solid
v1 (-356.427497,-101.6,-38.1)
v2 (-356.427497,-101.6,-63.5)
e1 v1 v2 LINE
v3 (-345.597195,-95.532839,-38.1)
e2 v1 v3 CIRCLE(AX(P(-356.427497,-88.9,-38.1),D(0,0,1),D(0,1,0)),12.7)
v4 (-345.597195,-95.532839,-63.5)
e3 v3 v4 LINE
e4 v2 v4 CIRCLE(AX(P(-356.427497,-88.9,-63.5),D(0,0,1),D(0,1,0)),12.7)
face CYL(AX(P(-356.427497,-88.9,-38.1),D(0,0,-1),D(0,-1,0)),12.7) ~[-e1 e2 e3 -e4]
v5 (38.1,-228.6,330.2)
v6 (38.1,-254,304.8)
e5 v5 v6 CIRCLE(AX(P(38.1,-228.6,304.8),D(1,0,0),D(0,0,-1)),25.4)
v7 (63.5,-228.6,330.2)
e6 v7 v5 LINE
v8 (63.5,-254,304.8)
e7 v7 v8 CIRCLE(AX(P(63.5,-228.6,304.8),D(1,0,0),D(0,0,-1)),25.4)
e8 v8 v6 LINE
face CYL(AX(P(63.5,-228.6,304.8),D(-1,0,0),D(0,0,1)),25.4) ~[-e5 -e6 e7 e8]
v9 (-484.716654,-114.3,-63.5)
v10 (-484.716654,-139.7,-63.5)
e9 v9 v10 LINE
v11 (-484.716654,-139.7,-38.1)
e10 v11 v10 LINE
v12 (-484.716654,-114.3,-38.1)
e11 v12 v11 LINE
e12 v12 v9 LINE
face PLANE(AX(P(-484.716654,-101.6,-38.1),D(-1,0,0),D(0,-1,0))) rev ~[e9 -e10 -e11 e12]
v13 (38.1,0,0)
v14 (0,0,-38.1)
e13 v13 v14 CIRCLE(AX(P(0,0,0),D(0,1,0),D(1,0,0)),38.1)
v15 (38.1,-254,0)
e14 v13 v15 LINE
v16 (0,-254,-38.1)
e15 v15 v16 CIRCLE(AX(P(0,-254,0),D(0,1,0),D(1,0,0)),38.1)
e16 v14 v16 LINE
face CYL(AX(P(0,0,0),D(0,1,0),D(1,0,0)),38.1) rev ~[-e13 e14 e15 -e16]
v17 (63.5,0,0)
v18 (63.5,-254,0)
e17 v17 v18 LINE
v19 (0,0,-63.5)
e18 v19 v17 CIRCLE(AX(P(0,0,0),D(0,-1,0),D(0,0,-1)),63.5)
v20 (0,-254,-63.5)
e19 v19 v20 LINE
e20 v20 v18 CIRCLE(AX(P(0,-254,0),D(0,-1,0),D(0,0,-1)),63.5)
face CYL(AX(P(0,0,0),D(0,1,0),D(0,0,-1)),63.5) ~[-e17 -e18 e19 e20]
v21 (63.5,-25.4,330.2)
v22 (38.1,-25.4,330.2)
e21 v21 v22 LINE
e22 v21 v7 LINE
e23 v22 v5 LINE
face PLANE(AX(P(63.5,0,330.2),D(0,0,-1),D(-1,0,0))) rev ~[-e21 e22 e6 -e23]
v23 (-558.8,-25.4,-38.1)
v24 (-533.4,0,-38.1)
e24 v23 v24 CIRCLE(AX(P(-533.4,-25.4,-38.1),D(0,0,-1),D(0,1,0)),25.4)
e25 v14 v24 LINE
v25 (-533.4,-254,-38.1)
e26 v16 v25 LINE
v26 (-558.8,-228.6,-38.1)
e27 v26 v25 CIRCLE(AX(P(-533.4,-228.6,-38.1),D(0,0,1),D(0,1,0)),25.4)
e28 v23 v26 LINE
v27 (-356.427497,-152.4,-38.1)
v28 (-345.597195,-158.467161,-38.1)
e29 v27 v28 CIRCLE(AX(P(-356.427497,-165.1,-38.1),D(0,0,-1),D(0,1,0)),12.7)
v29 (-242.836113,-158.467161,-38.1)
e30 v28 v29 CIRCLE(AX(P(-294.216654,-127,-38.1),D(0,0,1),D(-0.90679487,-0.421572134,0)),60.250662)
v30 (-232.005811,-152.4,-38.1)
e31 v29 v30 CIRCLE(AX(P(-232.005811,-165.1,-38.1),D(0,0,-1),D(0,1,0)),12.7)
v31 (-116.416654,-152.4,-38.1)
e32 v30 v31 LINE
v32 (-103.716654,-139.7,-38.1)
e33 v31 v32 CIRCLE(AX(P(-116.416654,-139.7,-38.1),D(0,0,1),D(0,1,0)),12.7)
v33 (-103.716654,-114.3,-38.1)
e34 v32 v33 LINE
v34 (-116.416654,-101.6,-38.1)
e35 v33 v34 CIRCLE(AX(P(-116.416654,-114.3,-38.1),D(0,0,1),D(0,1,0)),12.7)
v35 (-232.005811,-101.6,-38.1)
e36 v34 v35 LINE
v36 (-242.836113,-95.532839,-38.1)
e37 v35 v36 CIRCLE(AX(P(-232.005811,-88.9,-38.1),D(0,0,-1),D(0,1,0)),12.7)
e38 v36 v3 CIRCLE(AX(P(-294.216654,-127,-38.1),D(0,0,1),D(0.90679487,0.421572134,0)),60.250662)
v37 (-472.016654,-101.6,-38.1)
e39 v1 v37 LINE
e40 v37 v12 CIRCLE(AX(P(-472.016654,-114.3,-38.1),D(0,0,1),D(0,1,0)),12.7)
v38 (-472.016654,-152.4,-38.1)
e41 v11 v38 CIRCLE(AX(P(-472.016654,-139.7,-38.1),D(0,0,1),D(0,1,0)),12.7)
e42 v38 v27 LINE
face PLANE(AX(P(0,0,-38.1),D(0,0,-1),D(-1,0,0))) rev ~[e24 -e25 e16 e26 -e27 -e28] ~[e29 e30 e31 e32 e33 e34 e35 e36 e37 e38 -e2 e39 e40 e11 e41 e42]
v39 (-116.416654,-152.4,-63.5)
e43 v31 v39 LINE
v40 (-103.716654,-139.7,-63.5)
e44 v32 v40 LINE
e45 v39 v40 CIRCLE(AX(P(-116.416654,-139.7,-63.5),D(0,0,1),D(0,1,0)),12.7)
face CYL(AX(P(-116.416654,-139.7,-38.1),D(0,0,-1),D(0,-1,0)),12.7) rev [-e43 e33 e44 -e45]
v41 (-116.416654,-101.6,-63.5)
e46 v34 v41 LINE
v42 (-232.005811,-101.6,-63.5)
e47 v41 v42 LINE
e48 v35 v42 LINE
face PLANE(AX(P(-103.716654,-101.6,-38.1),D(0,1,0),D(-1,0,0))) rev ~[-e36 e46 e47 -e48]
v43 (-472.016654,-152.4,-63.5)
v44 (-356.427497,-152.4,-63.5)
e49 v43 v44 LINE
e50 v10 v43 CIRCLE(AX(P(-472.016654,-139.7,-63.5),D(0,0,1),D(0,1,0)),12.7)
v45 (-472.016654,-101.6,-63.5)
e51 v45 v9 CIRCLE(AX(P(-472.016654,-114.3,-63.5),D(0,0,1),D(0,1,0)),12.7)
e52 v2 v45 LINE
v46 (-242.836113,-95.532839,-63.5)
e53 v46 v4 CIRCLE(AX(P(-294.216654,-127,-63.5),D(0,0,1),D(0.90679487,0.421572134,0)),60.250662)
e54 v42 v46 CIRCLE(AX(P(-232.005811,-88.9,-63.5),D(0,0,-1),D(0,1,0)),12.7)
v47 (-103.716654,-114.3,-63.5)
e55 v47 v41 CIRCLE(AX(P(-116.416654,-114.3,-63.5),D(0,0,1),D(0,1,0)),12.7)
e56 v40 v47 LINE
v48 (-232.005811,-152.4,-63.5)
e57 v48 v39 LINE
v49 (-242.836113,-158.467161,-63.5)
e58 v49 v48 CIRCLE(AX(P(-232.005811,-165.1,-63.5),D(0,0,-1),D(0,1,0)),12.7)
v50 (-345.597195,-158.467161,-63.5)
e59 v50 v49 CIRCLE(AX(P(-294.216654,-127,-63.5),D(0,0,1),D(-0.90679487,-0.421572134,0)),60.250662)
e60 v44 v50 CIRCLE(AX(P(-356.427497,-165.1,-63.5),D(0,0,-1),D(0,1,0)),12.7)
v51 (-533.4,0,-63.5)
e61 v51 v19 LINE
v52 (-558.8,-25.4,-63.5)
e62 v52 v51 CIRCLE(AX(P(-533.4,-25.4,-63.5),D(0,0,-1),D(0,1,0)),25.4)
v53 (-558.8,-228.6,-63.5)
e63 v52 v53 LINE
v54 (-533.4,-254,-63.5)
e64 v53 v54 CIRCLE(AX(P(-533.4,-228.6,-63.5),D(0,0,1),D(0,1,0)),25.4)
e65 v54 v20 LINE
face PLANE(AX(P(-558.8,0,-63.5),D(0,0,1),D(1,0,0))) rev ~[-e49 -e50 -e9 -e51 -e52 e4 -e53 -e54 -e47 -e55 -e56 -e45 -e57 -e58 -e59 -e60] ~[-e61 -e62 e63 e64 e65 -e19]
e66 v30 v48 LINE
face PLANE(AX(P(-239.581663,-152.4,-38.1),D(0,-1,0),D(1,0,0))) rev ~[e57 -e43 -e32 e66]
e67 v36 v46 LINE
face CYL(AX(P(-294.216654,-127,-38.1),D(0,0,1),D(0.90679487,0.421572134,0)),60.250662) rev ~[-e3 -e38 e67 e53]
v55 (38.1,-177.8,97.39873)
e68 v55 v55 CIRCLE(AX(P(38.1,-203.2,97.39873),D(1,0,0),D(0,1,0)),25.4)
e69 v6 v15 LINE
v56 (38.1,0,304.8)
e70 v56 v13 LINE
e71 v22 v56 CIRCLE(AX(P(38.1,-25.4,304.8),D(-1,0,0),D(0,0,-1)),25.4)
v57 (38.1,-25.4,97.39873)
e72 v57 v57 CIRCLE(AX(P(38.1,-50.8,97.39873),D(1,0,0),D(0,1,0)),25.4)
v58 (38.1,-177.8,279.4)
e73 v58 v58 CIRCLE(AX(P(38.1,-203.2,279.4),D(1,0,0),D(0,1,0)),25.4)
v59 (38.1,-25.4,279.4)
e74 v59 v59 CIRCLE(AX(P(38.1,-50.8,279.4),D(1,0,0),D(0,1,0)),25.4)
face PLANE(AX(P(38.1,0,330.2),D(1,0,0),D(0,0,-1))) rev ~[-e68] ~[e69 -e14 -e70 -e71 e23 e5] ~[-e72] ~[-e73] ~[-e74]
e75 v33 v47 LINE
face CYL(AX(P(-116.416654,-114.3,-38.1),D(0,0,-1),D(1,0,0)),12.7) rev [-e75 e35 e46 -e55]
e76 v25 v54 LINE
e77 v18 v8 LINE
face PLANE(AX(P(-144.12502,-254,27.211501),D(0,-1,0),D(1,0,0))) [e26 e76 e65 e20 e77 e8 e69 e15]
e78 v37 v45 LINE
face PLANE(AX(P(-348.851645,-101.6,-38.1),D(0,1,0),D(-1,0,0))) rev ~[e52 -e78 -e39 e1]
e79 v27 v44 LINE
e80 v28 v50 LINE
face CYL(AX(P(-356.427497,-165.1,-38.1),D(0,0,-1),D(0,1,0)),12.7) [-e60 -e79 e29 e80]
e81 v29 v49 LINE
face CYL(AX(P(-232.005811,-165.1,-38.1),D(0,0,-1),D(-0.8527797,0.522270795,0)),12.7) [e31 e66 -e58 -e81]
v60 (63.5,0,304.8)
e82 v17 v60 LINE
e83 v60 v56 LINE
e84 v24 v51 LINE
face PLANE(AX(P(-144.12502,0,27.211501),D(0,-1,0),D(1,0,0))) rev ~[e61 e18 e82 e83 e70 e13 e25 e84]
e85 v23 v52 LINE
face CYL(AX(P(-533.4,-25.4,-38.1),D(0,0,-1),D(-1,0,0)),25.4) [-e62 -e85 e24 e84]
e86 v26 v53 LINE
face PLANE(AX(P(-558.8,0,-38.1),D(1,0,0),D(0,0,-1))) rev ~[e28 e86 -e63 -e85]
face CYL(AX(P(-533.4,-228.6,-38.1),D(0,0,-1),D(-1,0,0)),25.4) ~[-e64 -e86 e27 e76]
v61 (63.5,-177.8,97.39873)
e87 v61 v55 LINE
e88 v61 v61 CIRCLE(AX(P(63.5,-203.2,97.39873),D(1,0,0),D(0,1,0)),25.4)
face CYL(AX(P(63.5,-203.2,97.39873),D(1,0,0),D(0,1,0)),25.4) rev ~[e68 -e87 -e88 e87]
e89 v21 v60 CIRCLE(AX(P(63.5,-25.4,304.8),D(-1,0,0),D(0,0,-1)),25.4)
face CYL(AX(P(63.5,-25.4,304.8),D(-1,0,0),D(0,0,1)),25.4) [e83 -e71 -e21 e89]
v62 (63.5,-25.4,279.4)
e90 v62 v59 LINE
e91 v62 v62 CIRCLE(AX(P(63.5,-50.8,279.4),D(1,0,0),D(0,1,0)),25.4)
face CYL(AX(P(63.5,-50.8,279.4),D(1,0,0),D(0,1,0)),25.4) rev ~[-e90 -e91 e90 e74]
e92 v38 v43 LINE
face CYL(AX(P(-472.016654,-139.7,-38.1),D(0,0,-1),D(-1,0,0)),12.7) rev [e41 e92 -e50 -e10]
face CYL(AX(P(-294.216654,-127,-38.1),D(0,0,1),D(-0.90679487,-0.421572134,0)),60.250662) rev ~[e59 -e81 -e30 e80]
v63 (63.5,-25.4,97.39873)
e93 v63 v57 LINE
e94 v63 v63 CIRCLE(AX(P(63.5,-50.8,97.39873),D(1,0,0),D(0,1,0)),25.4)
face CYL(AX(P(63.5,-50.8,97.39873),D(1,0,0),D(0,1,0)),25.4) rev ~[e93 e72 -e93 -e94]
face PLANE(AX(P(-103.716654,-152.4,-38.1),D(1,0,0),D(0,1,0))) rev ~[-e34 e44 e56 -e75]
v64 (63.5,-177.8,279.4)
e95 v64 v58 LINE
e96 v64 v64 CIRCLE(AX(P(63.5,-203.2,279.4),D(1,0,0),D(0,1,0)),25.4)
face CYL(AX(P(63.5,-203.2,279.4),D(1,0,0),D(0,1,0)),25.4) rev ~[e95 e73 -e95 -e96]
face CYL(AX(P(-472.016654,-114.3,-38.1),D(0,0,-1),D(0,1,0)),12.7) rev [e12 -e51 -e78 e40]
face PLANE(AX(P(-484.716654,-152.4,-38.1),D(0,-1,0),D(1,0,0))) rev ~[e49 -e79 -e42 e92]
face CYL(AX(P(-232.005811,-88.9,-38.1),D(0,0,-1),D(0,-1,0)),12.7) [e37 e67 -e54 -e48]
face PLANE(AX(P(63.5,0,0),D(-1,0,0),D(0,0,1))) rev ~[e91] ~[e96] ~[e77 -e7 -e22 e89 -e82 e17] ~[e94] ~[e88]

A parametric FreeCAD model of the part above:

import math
import FreeCAD as App
import Part
import Sketcher
from FreeCAD import Vector
Q = App.Units.Quantity


def edges_at(feature, points):
    """Names of the edges that pass closest to the given points."""
    edges = feature.Shape.Edges
    near = lambda p: min(range(len(edges)), key=lambda i: edges[i].distToShape(Part.Vertex(*p))[0])
    return sorted({f"Edge{near(p) + 1}" for p in points})

doc = App.newDocument("Part")
params = doc.addObject("Spreadsheet::Sheet", "Params")
for row, (alias, value) in enumerate([
    ("sketch1_radius", "2.5 in"),
    ("sketch1_radius2", "1.5 in"),
    ("sketch1_width", "22 in"),
    ("sketch1_height", "13 in"),
    ("pad1_length", "10 in"),
    ("fillet_radius", "1 in"),
    ("sketch2_height", "2 in"),
    ("pocket1_length", "1 in"),
    ("fillet2_radius", "0.5 in"),
    ("sketch3_diameter", "2 in"),
    ("pocket2_length", "1 in"),
], start=1):
    params.set(f"A{row}", alias)
    params.set(f"B{row}", "=" + value)
    params.setAlias(f"B{row}", alias)

body = doc.addObject("PartDesign::Body", "Body")

sketch1 = body.newObject("Sketcher::SketchObject", "Sketch")
sketch1.AttachmentSupport = (doc.getObject("XZ_Plane"), [""])
sketch1.MapMode = "FlatFace"
sketch1.addGeometry(Part.LineSegment(Vector(-559, -64, 0), Vector(0, -64, 0)), False)
sketch1.addGeometry(Part.ArcOfCircle(Part.Circle(Vector(0, 0, 0), Vector(0, 0, 1), 64), math.radians(-90), math.radians(0)), False)
sketch1.addGeometry(Part.LineSegment(Vector(64, 0, 0), Vector(64, 330, 0)), False)
sketch1.addGeometry(Part.LineSegment(Vector(64, 330, 0), Vector(38, 330, 0)), False)
sketch1.addGeometry(Part.LineSegment(Vector(38, 330, 0), Vector(38, 0, 0)), False)
sketch1.addGeometry(Part.ArcOfCircle(Part.Circle(Vector(0, 0, 0), Vector(0, 0, 1), 38), math.radians(-90), math.radians(0)), False)
sketch1.addGeometry(Part.LineSegment(Vector(0, -38, 0), Vector(-559, -38, 0)), False)
sketch1.addGeometry(Part.LineSegment(Vector(-559, -38, 0), Vector(-559, -64, 0)), False)
sketch1.addConstraint(Sketcher.Constraint("Tangent", 0, 2, 1, 1))
sketch1.addConstraint(Sketcher.Constraint("Tangent", 1, 2, 2, 1))
sketch1.addConstraint(Sketcher.Constraint("Coincident", 2, 2, 3, 1))
sketch1.addConstraint(Sketcher.Constraint("Coincident", 3, 2, 4, 1))
sketch1.addConstraint(Sketcher.Constraint("Tangent", 4, 2, 5, 2))
sketch1.addConstraint(Sketcher.Constraint("Tangent", 5, 1, 6, 1))
sketch1.addConstraint(Sketcher.Constraint("Coincident", 6, 2, 7, 1))
sketch1.addConstraint(Sketcher.Constraint("Coincident", 7, 2, 0, 1))
sketch1.addConstraint(Sketcher.Constraint("Horizontal", 0))
sketch1.addConstraint(Sketcher.Constraint("Vertical", 2))
sketch1.addConstraint(Sketcher.Constraint("Horizontal", 3))
sketch1.addConstraint(Sketcher.Constraint("Vertical", 4))
sketch1.addConstraint(Sketcher.Constraint("Horizontal", 6))
sketch1.addConstraint(Sketcher.Constraint("Vertical", 7))
sketch1.addConstraint(Sketcher.Constraint("Coincident", 1, 3, -1, 1))
sketch1.addConstraint(Sketcher.Constraint("Coincident", 5, 3, -1, 1))
sketch1.addConstraint(Sketcher.Constraint("Radius", 1, Q("2.5 in")))
sketch1.addConstraint(Sketcher.Constraint("Radius", 5, Q("1.5 in")))
sketch1.addConstraint(Sketcher.Constraint("DistanceX", 0, 1, 0, 2, Q("22 in")))
sketch1.addConstraint(Sketcher.Constraint("DistanceY", 2, 1, 2, 2, Q("13 in")))
sketch1.setExpression("Constraints[16]", "Params.sketch1_radius")
sketch1.setExpression("Constraints[17]", "Params.sketch1_radius2")
sketch1.setExpression("Constraints[18]", "Params.sketch1_width")
sketch1.setExpression("Constraints[19]", "Params.sketch1_height")
pad1 = body.newObject("PartDesign::Pad", "Pad")
pad1.Profile = sketch1
pad1.setExpression("Length", "Params.pad1_length")
doc.recompute()

fillet = body.newObject("PartDesign::Fillet", "Fillet")
fillet.Base = (pad1, edges_at(pad1, [
    (50.8, 0, 330.2),
    (50.8, -254, 330.2),
    (-558.8, 0, -50.8),
    (-558.8, -254, -50.8),
]))
fillet.setExpression("Radius", "Params.fillet_radius")

sketch2 = body.newObject("Sketcher::SketchObject", "Sketch001")
sketch2.AttachmentSupport = (doc.getObject("XY_Plane"), [""])
sketch2.MapMode = "FlatFace"
sketch2.AttachmentOffset = App.Placement(Vector(0, 0, -1.5 * 25.4), App.Rotation())
sketch2.addGeometry(Part.LineSegment(Vector(-349, -102, 0), Vector(-485, -102, 0)), False)
sketch2.addGeometry(Part.LineSegment(Vector(-485, -102, 0), Vector(-485, -152, 0)), False)
sketch2.addGeometry(Part.LineSegment(Vector(-485, -152, 0), Vector(-349, -152, 0)), False)
sketch2.addGeometry(Part.ArcOfCircle(Part.Circle(Vector(-294, -127, 0), Vector(0, 0, 1), 60), math.radians(-155), math.radians(-25)), False)
sketch2.addGeometry(Part.LineSegment(Vector(-240, -152, 0), Vector(-104, -152, 0)), False)
sketch2.addGeometry(Part.LineSegment(Vector(-104, -152, 0), Vector(-104, -102, 0)), False)
sketch2.addGeometry(Part.LineSegment(Vector(-104, -102, 0), Vector(-240, -102, 0)), False)
sketch2.addGeometry(Part.ArcOfCircle(Part.Circle(Vector(-294, -127, 0), Vector(0, 0, 1), 60), math.radians(25), math.radians(155)), False)
sketch2.addConstraint(Sketcher.Constraint("Coincident", 0, 2, 1, 1))
sketch2.addConstraint(Sketcher.Constraint("Coincident", 1, 2, 2, 1))
sketch2.addConstraint(Sketcher.Constraint("Coincident", 2, 2, 3, 1))
sketch2.addConstraint(Sketcher.Constraint("Coincident", 3, 2, 4, 1))
sketch2.addConstraint(Sketcher.Constraint("Coincident", 4, 2, 5, 1))
sketch2.addConstraint(Sketcher.Constraint("Coincident", 5, 2, 6, 1))
sketch2.addConstraint(Sketcher.Constraint("Coincident", 6, 2, 7, 1))
sketch2.addConstraint(Sketcher.Constraint("Coincident", 7, 2, 0, 1))
sketch2.addConstraint(Sketcher.Constraint("Horizontal", 0))
sketch2.addConstraint(Sketcher.Constraint("Vertical", 1))
sketch2.addConstraint(Sketcher.Constraint("Horizontal", 2))
sketch2.addConstraint(Sketcher.Constraint("Horizontal", 4))
sketch2.addConstraint(Sketcher.Constraint("Vertical", 5))
sketch2.addConstraint(Sketcher.Constraint("Horizontal", 6))
sketch2.addConstraint(Sketcher.Constraint("Coincident", 7, 3, 3, 3))
sketch2.addConstraint(Sketcher.Constraint("Equal", 3, 7))
sketch2.addConstraint(Sketcher.Constraint("Horizontal", 2, 2, 3, 2))
sketch2.addConstraint(Sketcher.Constraint("Horizontal", 0, 2, 5, 2))
sketch2.addConstraint(Sketcher.Constraint("Vertical", 3, 2, 6, 2))
sketch2.addConstraint(Sketcher.Constraint("Equal", 2, 4))
sketch2.addConstraint(Sketcher.Constraint("DistanceY", 1, 2, 1, 1, Q("2 in")))
sketch2.addConstraint(Sketcher.Constraint("DistanceY", 3, 3, -1, 1, Q("5 in")))
sketch2.addConstraint(Sketcher.Constraint("DistanceX", 1, 2, 4, 2, Q("15 in")))
sketch2.addConstraint(Sketcher.Constraint("Radius", 3, 60.250662))
sketch2.addConstraint(Sketcher.Constraint("DistanceX", 3, 3, -1, 1, 294.216654))
sketch2.setExpression("Constraints[20]", "Params.sketch2_height")
pocket1 = body.newObject("PartDesign::Pocket", "Pocket")
pocket1.Profile = sketch2
pocket1.setExpression("Length", "Params.pocket1_length")
doc.recompute()

fillet2 = body.newObject("PartDesign::Fillet", "Fillet001")
fillet2.Base = (pocket1, edges_at(pocket1, [
    (-484.717, -101.6, -50.8),
    (-348.852, -101.6, -50.8),
    (-484.717, -152.4, -50.8),
    (-348.852, -152.4, -50.8),
    (-239.582, -152.4, -50.8),
    (-239.582, -101.6, -50.8),
    (-103.717, -152.4, -50.8),
    (-103.717, -101.6, -50.8),
]))
fillet2.setExpression("Radius", "Params.fillet2_radius")

sketch3 = body.newObject("Sketcher::SketchObject", "Sketch002")
sketch3.AttachmentSupport = (doc.getObject("YZ_Plane"), [""])
sketch3.MapMode = "FlatFace"
sketch3.AttachmentOffset = App.Placement(Vector(0, 0, 2.5 * 25.4), App.Rotation())
sketch3.addGeometry(Part.Circle(Vector(-51, 279, 0), Vector(0, 0, 1), 25), False)
sketch3.addGeometry(Part.Circle(Vector(-203, 279, 0), Vector(0, 0, 1), 25), False)
sketch3.addGeometry(Part.Circle(Vector(-51, 97, 0), Vector(0, 0, 1), 25), False)
sketch3.addGeometry(Part.Circle(Vector(-203, 97, 0), Vector(0, 0, 1), 25), False)
sketch3.addConstraint(Sketcher.Constraint("Equal", 0, 1))
sketch3.addConstraint(Sketcher.Constraint("Equal", 1, 2))
sketch3.addConstraint(Sketcher.Constraint("Equal", 2, 3))
sketch3.addConstraint(Sketcher.Constraint("Horizontal", 0, 3, 1, 3))
sketch3.addConstraint(Sketcher.Constraint("Horizontal", 2, 3, 3, 3))
sketch3.addConstraint(Sketcher.Constraint("Vertical", 0, 3, 2, 3))
sketch3.addConstraint(Sketcher.Constraint("Vertical", 1, 3, 3, 3))
sketch3.addConstraint(Sketcher.Constraint("Diameter", 0, Q("2 in")))
sketch3.addConstraint(Sketcher.Constraint("DistanceX", 0, 3, -1, 1, Q("2 in")))
sketch3.addConstraint(Sketcher.Constraint("DistanceY", -1, 1, 0, 3, Q("11 in")))
sketch3.addConstraint(Sketcher.Constraint("DistanceX", 1, 3, -1, 1, Q("8 in")))
sketch3.addConstraint(Sketcher.Constraint("DistanceY", -1, 1, 2, 3, 97.39873))
sketch3.setExpression("Constraints[7]", "Params.sketch3_diameter")
pocket2 = body.newObject("PartDesign::Pocket", "Pocket001")
pocket2.Profile = sketch3
pocket2.setExpression("Length", "Params.pocket2_length")

doc.recompute()
